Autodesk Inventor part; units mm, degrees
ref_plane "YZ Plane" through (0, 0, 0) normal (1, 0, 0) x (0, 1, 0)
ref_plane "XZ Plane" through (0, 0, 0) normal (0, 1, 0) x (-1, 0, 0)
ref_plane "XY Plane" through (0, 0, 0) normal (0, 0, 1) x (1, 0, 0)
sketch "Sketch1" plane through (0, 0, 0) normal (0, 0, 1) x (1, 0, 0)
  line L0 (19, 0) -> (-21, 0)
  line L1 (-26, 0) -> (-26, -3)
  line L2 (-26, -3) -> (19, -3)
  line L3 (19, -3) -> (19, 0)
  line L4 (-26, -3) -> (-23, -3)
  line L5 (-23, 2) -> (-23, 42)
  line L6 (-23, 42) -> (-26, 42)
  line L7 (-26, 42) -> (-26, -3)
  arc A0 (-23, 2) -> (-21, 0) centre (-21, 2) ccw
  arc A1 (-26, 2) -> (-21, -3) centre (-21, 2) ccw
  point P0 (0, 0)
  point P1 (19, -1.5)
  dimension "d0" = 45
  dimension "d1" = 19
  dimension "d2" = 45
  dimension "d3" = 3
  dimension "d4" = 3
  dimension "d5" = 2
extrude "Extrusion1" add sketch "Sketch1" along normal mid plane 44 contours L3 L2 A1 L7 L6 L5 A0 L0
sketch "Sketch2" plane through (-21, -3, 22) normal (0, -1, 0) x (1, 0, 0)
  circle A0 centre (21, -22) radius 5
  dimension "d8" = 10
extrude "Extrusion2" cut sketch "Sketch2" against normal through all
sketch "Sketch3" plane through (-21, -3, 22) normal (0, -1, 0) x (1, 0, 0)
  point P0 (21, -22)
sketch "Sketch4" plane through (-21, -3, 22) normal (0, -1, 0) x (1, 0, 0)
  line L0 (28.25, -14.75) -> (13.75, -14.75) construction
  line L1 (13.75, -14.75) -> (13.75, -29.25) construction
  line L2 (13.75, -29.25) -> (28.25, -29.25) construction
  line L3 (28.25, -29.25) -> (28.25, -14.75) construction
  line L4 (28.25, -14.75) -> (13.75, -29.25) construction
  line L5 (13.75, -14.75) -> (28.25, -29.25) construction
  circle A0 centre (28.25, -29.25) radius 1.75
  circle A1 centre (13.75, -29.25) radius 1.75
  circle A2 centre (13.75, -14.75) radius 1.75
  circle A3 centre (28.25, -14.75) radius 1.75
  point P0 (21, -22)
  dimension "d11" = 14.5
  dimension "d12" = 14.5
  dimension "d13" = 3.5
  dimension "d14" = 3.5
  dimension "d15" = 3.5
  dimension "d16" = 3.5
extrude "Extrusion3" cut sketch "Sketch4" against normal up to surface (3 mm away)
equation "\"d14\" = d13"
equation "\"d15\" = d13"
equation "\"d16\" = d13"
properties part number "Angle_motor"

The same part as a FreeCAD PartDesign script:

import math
import FreeCAD as App
import Part
import Sketcher
from FreeCAD import Vector
Q = App.Units.Quantity

doc = App.newDocument("Part")
body = doc.addObject("PartDesign::Body", "Body")

# Sketch on XY plane
sketch1 = body.newObject("Sketcher::SketchObject", "Sketch")
sketch1.AttachmentSupport = (doc.getObject("XY_Plane"), [""])
sketch1.MapMode = "FlatFace"
sketch1.addGeometry([
    Part.LineSegment(Vector(19, -3, 0), Vector(19, 0, 0)),  # 0
    Part.LineSegment(Vector(19, 0, 0), Vector(-21, 0, 0)),  # 1
    Part.ArcOfCircle(Part.Circle(Vector(-21, 2, 0), Vector(0, 0, 1), 2), math.radians(180), math.radians(270)),  # 2
    Part.LineSegment(Vector(-23, 2, 0), Vector(-23, 42, 0)),  # 3
    Part.LineSegment(Vector(-23, 42, 0), Vector(-26, 42, 0)),  # 4
    Part.LineSegment(Vector(-26, 42, 0), Vector(-26, 2, 0)),  # 5
    Part.ArcOfCircle(Part.Circle(Vector(-21, 2, 0), Vector(0, 0, 1), 5), math.radians(180), math.radians(270)),  # 6
    Part.LineSegment(Vector(-21, -3, 0), Vector(19, -3, 0)),  # 7
], False)
sketch1.addConstraint([
    Sketcher.Constraint("Coincident", 0, 2, 1, 1),
    Sketcher.Constraint("Tangent", 1, 2, 2, 2),
    Sketcher.Constraint("Tangent", 2, 1, 3, 1),
    Sketcher.Constraint("Coincident", 3, 2, 4, 1),
    Sketcher.Constraint("Coincident", 4, 2, 5, 1),
    Sketcher.Constraint("Tangent", 5, 2, 6, 1),
    Sketcher.Constraint("Tangent", 6, 2, 7, 1),
    Sketcher.Constraint("Coincident", 7, 2, 0, 1),
    Sketcher.Constraint("Vertical", 0),
    Sketcher.Constraint("Horizontal", 1),
    Sketcher.Constraint("Vertical", 3),
    Sketcher.Constraint("Horizontal", 4),
    Sketcher.Constraint("Vertical", 5),
    Sketcher.Constraint("Horizontal", 7),
    Sketcher.Constraint("Coincident", 6, 3, 2, 3),
    Sketcher.Constraint("PointOnObject", 0, 2, -1),
    Sketcher.Constraint("Equal", 7, 3),
    Sketcher.Constraint("Radius", 2, Q("2 mm")),
    Sketcher.Constraint("DistanceX", 4, 2, 4, 1, Q("3 mm")),
    Sketcher.Constraint("DistanceX", -1, 1, 0, 2, Q("19 mm")),
    Sketcher.Constraint("DistanceX", 1, 2, 1, 1, Q("40 mm")),
])
pad1 = body.newObject("PartDesign::Pad", "Pad")
pad1.Profile = sketch1
pad1.Length = 44
pad1.Midplane = True

# Sketch on XZ plane
sketch2 = body.newObject("Sketcher::SketchObject", "Sketch001")
sketch2.AttachmentSupport = (doc.getObject("XZ_Plane"), [""])
sketch2.MapMode = "FlatFace"
sketch2.AttachmentOffset = App.Placement(Vector(0, 0, 3), App.Rotation())
sketch2.addGeometry(Part.Circle(Vector(0, 0, 0), Vector(0, 0, 1), 5), False)
sketch2.addConstraint([
    Sketcher.Constraint("Coincident", 0, 3, -1, 1),
    Sketcher.Constraint("Diameter", 0, Q("10 mm")),
])
pocket1 = body.newObject("PartDesign::Pocket", "Pocket")
pocket1.Profile = sketch2
pocket1.Type = "ThroughAll"

# Sketch on XZ plane
sketch3 = body.newObject("Sketcher::SketchObject", "Sketch002")
sketch3.AttachmentSupport = (doc.getObject("XZ_Plane"), [""])
sketch3.MapMode = "FlatFace"
sketch3.AttachmentOffset = App.Placement(Vector(0, 0, 3), App.Rotation())
sketch3.addGeometry([
    Part.Circle(Vector(7.2, -7.2, 0), Vector(0, 0, 1), 1.8),
    Part.Circle(Vector(-7.2, -7.2, 0), Vector(0, 0, 1), 1.8),
    Part.Circle(Vector(-7.2, 7.2, 0), Vector(0, 0, 1), 1.8),
    Part.Circle(Vector(7.2, 7.2, 0), Vector(0, 0, 1), 1.8),
], False)
sketch3.addConstraint([
    Sketcher.Constraint("Equal", 0, 1),
    Sketcher.Constraint("Equal", 1, 2),
    Sketcher.Constraint("Equal", 2, 3),
    Sketcher.Constraint("Symmetric", 0, 3, 2, 3, -1, 1),
    Sketcher.Constraint("Symmetric", 1, 3, 3, 3, -1, 1),
    Sketcher.Constraint("Symmetric", 0, 3, 1, 3, -2),
    Sketcher.Constraint("Diameter", 0, Q("3.5 mm")),
    Sketcher.Constraint("DistanceX", 1, 3, 0, 3, Q("14.5 mm")),
    Sketcher.Constraint("DistanceY", 1, 3, 2, 3, Q("14.5 mm")),
])
pocket2 = body.newObject("PartDesign::Pocket", "Pocket001")
pocket2.Profile = sketch3
pocket2.Length = 3

doc.recompute()
